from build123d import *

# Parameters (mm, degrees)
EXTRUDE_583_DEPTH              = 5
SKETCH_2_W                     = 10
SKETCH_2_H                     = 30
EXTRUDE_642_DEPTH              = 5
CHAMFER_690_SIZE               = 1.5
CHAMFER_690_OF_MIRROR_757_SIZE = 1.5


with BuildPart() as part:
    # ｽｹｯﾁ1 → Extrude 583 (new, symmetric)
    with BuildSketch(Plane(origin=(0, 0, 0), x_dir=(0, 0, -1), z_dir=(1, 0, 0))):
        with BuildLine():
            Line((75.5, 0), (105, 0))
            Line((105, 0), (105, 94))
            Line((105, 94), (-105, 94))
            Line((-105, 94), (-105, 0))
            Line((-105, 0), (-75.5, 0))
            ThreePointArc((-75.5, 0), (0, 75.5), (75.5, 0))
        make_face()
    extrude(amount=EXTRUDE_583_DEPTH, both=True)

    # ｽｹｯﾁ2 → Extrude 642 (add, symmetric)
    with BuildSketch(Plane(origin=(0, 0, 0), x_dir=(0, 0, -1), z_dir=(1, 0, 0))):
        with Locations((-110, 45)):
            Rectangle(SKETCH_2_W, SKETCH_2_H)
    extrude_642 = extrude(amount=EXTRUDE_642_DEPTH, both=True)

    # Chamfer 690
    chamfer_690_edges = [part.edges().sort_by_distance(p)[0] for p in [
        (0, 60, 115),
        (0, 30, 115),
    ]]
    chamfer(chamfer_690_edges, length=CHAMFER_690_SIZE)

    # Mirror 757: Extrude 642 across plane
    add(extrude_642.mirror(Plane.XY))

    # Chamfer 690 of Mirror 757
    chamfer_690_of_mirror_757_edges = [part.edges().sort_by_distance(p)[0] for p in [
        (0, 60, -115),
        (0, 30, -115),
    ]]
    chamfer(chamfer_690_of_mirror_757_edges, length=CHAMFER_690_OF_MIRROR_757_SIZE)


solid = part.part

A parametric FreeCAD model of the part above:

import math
import FreeCAD as App
import Part
import Sketcher
from FreeCAD import Vector


def edges_at(feature, points):
    """Names of the edges that pass closest to the given points."""
    edges = feature.Shape.Edges
    near = lambda p: min(range(len(edges)), key=lambda i: edges[i].distToShape(Part.Vertex(*p))[0])
    return sorted({f"Edge{near(p) + 1}" for p in points})


def add_polygon(sketch, points):
    """Adds a closed chain of lines whose ends are joined by coincident constraints."""
    first, n = sketch.GeometryCount, len(points)
    for a, b in zip(points, points[1:] + points[:1]):
        sketch.addGeometry(Part.LineSegment(App.Vector(*a, 0), App.Vector(*b, 0)), False)
    for i in range(n):
        sketch.addConstraint(Sketcher.Constraint("Coincident", first + i, 2, first + (i + 1) % n, 1))

doc = App.newDocument("Part")
body = doc.addObject("PartDesign::Body", "Body")

# Sketch on YZ plane
sketch1 = body.newObject("Sketcher::SketchObject", "Sketch")
sketch1.AttachmentSupport = (doc.getObject("YZ_Plane"), [""])
sketch1.MapMode = "FlatFace"
sketch1.addGeometry([
    Part.LineSegment(Vector(0, -76, 0), Vector(0, -105, 0)),  # 0
    Part.LineSegment(Vector(0, -105, 0), Vector(94, -105, 0)),  # 1
    Part.LineSegment(Vector(94, -105, 0), Vector(94, 105, 0)),  # 2
    Part.LineSegment(Vector(94, 105, 0), Vector(0, 105, 0)),  # 3
    Part.LineSegment(Vector(0, 105, 0), Vector(0, 76, 0)),  # 4
    Part.ArcOfCircle(Part.Circle(Vector(0, 0, 0), Vector(0, 0, 1), 76), math.radians(-90), math.radians(90)),  # 5
], False)
sketch1.addConstraint([
    Sketcher.Constraint("Coincident", 0, 2, 1, 1),
    Sketcher.Constraint("Coincident", 1, 2, 2, 1),
    Sketcher.Constraint("Coincident", 2, 2, 3, 1),
    Sketcher.Constraint("Coincident", 3, 2, 4, 1),
    Sketcher.Constraint("Coincident", 4, 2, 5, 2),
    Sketcher.Constraint("Coincident", 5, 1, 0, 1),
    Sketcher.Constraint("Vertical", 0),
    Sketcher.Constraint("Horizontal", 1),
    Sketcher.Constraint("Vertical", 2),
    Sketcher.Constraint("Horizontal", 3),
    Sketcher.Constraint("Vertical", 4),
    Sketcher.Constraint("Coincident", 5, 3, -1, 1),
    Sketcher.Constraint("Symmetric", 0, 2, 3, 2, -1, 1),
    Sketcher.Constraint("PointOnObject", 0, 2, -2),
    Sketcher.Constraint("Radius", 5, 75.5),
    Sketcher.Constraint("DistanceX", 1, 1, 1, 2, 94.0),
    Sketcher.Constraint("DistanceY", 2, 1, 2, 2, 210.0),
])
pad1 = body.newObject("PartDesign::Pad", "Pad")
pad1.Profile = sketch1
pad1.Length = 10
pad1.Midplane = True

# Sketch on YZ plane
sketch2 = body.newObject("Sketcher::SketchObject", "Sketch001")
sketch2.AttachmentSupport = (doc.getObject("YZ_Plane"), [""])
sketch2.MapMode = "FlatFace"
add_polygon(sketch2, [(60, 115), (30, 115), (30, 105), (60, 105)])  # lines 0-3
sketch2.addConstraint([
    Sketcher.Constraint("Horizontal", 0),
    Sketcher.Constraint("Vertical", 1),
    Sketcher.Constraint("Horizontal", 2),
    Sketcher.Constraint("Vertical", 3),
    Sketcher.Constraint("DistanceX", 0, 2, 0, 1, 30.0),
    Sketcher.Constraint("DistanceY", 1, 2, 1, 1, 10.0),
    Sketcher.Constraint("DistanceX", -1, 1, 0, 2, 30.0),
    Sketcher.Constraint("DistanceY", -1, 1, 0, 2, 115.0),
])
pad2 = body.newObject("PartDesign::Pad", "Pad001")
pad2.Profile = sketch2
pad2.Length = 10
pad2.Midplane = True
doc.recompute()

chamfer = body.newObject("PartDesign::Chamfer", "Chamfer")
chamfer.Base = (pad2, edges_at(pad2, [(0, 60, 115), (0, 30, 115)]))
chamfer.Size = 1.5
doc.recompute()

mirrored = body.newObject("PartDesign::Mirrored", "Mirrored")
mirrored.Originals = [pad2]
mirrored.MirrorPlane = (doc.getObject("XY_Plane"), [""])
body.Tip = mirrored
doc.recompute()

chamfer2 = body.newObject("PartDesign::Chamfer", "Chamfer001")
chamfer2.Base = (mirrored, edges_at(mirrored, [(0, 60, -115), (0, 30, -115)]))
chamfer2.Size = 1.5

doc.recompute()
